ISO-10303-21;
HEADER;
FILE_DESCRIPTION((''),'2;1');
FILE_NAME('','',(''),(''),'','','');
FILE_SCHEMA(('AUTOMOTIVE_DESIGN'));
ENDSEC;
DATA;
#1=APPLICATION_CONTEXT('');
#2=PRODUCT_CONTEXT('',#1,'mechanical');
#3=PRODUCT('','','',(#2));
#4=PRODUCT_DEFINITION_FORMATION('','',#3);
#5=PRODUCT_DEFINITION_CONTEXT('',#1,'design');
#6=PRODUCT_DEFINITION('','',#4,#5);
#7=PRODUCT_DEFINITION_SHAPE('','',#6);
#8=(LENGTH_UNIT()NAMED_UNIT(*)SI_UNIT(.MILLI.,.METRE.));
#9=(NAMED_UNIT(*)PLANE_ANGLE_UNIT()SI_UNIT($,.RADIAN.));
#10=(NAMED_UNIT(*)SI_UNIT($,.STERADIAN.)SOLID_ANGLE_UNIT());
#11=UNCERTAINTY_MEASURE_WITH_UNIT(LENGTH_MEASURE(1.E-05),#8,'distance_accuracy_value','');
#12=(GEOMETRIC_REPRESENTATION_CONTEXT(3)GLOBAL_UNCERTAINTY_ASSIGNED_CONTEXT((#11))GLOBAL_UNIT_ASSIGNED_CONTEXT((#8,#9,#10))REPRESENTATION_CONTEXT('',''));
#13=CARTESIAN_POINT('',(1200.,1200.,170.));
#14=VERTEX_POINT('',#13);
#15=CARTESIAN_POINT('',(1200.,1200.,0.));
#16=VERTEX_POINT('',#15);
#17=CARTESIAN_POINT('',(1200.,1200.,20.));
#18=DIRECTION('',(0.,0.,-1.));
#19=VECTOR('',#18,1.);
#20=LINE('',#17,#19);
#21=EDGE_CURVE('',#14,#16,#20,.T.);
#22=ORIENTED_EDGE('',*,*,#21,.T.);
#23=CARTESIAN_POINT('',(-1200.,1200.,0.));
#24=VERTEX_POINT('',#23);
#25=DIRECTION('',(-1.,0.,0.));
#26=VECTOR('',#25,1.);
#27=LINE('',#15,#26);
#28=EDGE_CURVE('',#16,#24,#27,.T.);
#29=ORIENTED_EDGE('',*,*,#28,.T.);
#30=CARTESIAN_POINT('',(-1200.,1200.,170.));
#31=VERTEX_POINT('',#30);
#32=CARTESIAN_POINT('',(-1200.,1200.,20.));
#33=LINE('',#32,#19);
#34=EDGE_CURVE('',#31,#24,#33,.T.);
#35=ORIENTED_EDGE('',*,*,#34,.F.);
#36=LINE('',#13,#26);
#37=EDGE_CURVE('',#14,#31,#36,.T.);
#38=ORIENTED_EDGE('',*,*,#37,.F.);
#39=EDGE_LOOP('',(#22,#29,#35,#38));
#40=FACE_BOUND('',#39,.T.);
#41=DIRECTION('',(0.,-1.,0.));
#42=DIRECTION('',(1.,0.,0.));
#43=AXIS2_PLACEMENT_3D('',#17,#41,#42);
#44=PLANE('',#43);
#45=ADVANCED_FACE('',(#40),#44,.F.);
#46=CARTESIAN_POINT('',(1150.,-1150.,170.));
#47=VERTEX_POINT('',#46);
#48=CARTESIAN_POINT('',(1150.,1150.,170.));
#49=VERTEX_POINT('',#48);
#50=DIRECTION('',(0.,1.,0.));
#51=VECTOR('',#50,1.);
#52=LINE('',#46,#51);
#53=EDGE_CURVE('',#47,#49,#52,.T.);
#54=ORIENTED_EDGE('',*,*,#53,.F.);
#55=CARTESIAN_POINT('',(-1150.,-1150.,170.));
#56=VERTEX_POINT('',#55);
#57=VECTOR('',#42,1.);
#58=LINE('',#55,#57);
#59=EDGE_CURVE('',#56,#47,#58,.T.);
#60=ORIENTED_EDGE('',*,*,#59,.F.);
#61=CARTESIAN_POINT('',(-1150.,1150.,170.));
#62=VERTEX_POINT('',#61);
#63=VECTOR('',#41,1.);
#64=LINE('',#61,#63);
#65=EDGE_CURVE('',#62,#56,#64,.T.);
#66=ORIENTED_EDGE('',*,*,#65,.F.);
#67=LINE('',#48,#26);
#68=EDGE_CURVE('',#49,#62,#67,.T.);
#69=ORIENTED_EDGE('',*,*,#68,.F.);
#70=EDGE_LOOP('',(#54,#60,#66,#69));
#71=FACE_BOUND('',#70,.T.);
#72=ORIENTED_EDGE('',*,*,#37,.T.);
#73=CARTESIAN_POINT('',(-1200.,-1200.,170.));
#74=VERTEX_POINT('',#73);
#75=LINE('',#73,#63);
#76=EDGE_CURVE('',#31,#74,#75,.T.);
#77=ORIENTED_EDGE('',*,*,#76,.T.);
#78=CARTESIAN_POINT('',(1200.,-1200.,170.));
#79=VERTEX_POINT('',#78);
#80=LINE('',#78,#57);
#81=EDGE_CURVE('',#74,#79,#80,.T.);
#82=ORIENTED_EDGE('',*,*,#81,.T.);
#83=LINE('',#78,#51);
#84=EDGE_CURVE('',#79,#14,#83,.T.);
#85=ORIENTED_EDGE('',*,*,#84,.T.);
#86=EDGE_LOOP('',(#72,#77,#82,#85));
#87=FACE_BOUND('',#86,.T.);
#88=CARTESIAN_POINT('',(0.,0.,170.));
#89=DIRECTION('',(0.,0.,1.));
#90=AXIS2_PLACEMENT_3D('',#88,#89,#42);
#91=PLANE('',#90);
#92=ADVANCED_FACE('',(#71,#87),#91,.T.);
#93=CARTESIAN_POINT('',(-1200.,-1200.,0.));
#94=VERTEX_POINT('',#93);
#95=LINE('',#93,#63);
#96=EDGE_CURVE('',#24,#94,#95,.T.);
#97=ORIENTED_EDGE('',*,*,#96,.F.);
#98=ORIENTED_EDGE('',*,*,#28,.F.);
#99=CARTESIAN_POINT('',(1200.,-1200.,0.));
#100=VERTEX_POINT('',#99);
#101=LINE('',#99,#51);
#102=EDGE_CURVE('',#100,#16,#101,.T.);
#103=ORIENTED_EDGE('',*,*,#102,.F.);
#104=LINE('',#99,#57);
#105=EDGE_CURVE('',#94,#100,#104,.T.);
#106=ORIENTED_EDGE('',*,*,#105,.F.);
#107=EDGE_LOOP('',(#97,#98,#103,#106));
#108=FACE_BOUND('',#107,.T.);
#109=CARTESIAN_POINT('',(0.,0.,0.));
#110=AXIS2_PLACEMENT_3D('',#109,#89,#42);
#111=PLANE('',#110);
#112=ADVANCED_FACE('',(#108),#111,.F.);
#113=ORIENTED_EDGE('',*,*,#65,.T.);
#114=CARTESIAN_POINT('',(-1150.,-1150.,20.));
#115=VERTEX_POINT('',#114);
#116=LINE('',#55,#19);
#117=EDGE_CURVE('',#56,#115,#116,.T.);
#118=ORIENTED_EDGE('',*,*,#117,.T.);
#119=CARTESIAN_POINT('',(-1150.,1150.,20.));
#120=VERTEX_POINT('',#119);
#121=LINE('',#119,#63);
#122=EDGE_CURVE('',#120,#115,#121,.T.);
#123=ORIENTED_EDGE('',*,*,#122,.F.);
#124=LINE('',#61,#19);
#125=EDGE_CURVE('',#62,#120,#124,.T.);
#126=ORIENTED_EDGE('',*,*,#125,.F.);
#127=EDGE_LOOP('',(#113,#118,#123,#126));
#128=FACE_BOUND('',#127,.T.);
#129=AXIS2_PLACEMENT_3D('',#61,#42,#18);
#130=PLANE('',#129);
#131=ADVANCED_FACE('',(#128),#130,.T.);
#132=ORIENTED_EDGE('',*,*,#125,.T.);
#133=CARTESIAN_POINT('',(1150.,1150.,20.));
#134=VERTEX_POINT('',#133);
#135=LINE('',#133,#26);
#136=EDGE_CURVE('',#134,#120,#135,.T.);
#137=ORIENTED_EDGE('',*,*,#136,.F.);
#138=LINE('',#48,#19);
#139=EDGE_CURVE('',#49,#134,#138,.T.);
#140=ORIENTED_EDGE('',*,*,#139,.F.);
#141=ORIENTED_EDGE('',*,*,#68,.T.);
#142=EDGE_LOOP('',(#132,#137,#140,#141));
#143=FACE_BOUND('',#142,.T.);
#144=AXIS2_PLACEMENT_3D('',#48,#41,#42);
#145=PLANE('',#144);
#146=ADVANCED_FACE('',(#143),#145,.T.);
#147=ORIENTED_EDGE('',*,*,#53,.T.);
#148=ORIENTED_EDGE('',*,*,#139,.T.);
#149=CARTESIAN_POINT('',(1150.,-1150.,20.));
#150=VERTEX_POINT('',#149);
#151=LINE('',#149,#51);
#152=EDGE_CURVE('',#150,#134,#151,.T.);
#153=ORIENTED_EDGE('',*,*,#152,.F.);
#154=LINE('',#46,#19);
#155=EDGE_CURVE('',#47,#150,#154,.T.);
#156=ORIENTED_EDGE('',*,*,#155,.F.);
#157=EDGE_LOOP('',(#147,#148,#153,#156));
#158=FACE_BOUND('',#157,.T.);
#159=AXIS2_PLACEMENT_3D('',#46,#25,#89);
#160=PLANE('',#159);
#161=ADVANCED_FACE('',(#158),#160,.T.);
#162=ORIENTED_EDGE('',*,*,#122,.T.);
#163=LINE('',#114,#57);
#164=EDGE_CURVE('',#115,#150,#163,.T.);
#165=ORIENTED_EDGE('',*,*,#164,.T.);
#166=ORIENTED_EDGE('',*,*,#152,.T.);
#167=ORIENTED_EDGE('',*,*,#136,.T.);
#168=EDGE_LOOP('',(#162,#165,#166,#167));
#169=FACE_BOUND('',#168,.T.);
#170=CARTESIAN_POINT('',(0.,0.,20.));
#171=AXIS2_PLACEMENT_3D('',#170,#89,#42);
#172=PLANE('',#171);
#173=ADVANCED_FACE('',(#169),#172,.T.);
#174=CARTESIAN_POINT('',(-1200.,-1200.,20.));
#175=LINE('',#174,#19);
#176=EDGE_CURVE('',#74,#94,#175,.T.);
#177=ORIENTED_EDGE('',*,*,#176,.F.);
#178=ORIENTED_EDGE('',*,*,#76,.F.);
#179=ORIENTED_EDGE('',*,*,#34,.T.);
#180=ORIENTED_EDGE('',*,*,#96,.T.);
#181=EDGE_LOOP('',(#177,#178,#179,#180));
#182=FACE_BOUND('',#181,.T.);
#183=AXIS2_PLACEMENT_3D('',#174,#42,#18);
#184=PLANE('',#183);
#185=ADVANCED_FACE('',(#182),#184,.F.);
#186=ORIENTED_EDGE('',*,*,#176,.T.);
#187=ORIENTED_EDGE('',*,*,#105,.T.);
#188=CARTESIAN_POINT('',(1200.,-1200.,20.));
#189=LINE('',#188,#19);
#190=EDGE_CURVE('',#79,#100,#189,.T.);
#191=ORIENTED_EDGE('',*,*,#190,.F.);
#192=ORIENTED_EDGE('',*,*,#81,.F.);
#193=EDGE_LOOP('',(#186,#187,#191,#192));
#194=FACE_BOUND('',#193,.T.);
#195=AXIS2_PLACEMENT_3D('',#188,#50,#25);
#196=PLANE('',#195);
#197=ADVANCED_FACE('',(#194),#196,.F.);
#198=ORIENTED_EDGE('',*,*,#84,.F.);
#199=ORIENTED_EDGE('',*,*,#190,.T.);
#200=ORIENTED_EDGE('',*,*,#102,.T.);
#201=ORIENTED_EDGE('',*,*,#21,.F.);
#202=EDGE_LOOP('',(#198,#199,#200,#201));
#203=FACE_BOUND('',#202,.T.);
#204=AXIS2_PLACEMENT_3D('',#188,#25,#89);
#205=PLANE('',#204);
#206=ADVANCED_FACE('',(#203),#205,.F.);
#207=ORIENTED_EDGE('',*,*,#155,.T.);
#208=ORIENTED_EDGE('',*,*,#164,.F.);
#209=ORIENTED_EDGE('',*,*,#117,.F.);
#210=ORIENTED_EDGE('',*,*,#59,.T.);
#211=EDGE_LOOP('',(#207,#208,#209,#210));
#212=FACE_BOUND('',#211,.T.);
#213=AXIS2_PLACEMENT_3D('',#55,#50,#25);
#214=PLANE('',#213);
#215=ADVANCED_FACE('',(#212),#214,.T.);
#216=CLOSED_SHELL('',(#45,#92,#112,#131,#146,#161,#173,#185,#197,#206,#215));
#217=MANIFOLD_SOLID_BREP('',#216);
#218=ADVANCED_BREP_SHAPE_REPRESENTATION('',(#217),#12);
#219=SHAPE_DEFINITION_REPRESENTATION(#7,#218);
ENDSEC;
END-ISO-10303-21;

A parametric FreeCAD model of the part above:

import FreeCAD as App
import Part
import Sketcher
from FreeCAD import Vector

doc = App.newDocument("Part")
params = doc.addObject("Spreadsheet::Sheet", "Params")
for row, (alias, value) in enumerate([
    ("sketch1_width", "2400 mm"),
    ("pad1_length", "20 mm"),
    ("sketch2_width", "2400 mm"),
    ("sketch2_width2", "2300 mm"),
    ("pad2_length", "150 mm"),
], start=1):
    params.set(f"A{row}", alias)
    params.set(f"B{row}", "=" + value)
    params.setAlias(f"B{row}", alias)

body = doc.addObject("PartDesign::Body", "Body")

# Sketch on XY plane
sketch1 = body.newObject("Sketcher::SketchObject", "Sketch")
sketch1.AttachmentSupport = (doc.getObject("XY_Plane"), [""])
sketch1.MapMode = "FlatFace"
sketch1.addGeometry([
    Part.LineSegment(Vector(-1200, 1200, 0), Vector(-1200, -1200, 0)),
    Part.LineSegment(Vector(-1200, -1200, 0), Vector(1200, -1200, 0)),
    Part.LineSegment(Vector(1200, -1200, 0), Vector(1200, 1200, 0)),
    Part.LineSegment(Vector(1200, 1200, 0), Vector(-1200, 1200, 0)),
], False)
sketch1.addConstraint([
    Sketcher.Constraint("Coincident", 0, 2, 1, 1),
    Sketcher.Constraint("Coincident", 1, 2, 2, 1),
    Sketcher.Constraint("Coincident", 2, 2, 3, 1),
    Sketcher.Constraint("Coincident", 3, 2, 0, 1),
    Sketcher.Constraint("Vertical", 0),
    Sketcher.Constraint("Horizontal", 1),
    Sketcher.Constraint("Vertical", 2),
    Sketcher.Constraint("Horizontal", 3),
    Sketcher.Constraint("Symmetric", 0, 2, 2, 2, -1, 1),
    Sketcher.Constraint("Equal", 3, 0),
    Sketcher.Constraint("DistanceX", 1, 1, 1, 2, 2400.0),
])
sketch1.setExpression("Constraints[10]", "Params.sketch1_width")
pad1 = body.newObject("PartDesign::Pad", "Pad")
pad1.Profile = sketch1
pad1.setExpression("Length", "Params.pad1_length")

# Sketch on XY plane
sketch2 = body.newObject("Sketcher::SketchObject", "Sketch001")
sketch2.AttachmentSupport = (doc.getObject("XY_Plane"), [""])
sketch2.MapMode = "FlatFace"
sketch2.AttachmentOffset = App.Placement(Vector(0, 0, 20), App.Rotation())
sketch2.addGeometry([
    Part.LineSegment(Vector(-1200, 1200, 0), Vector(-1200, -1200, 0)),  # 0
    Part.LineSegment(Vector(-1200, -1200, 0), Vector(1200, -1200, 0)),  # 1
    Part.LineSegment(Vector(1200, -1200, 0), Vector(1200, 1200, 0)),  # 2
    Part.LineSegment(Vector(1200, 1200, 0), Vector(-1200, 1200, 0)),  # 3
    Part.LineSegment(Vector(1150, -1150, 0), Vector(-1150, -1150, 0)),  # 4
    Part.LineSegment(Vector(-1150, -1150, 0), Vector(-1150, 1150, 0)),  # 5
    Part.LineSegment(Vector(-1150, 1150, 0), Vector(1150, 1150, 0)),  # 6
    Part.LineSegment(Vector(1150, 1150, 0), Vector(1150, -1150, 0)),  # 7
], False)
sketch2.addConstraint([
    Sketcher.Constraint("Coincident", 0, 2, 1, 1),
    Sketcher.Constraint("Coincident", 1, 2, 2, 1),
    Sketcher.Constraint("Coincident", 2, 2, 3, 1),
    Sketcher.Constraint("Coincident", 3, 2, 0, 1),
    Sketcher.Constraint("Coincident", 4, 2, 5, 1),
    Sketcher.Constraint("Coincident", 5, 2, 6, 1),
    Sketcher.Constraint("Coincident", 6, 2, 7, 1),
    Sketcher.Constraint("Coincident", 7, 2, 4, 1),
    Sketcher.Constraint("Vertical", 0),
    Sketcher.Constraint("Horizontal", 1),
    Sketcher.Constraint("Vertical", 2),
    Sketcher.Constraint("Horizontal", 3),
    Sketcher.Constraint("Horizontal", 4),
    Sketcher.Constraint("Vertical", 5),
    Sketcher.Constraint("Horizontal", 6),
    Sketcher.Constraint("Vertical", 7),
    Sketcher.Constraint("Symmetric", 0, 2, 2, 2, -1, 1),
    Sketcher.Constraint("Symmetric", 4, 2, 6, 2, -1, 1),
    Sketcher.Constraint("Equal", 3, 0),
    Sketcher.Constraint("Equal", 6, 5),
    Sketcher.Constraint("DistanceX", 1, 1, 1, 2, 2400.0),
    Sketcher.Constraint("DistanceX", 4, 2, 4, 1, 2300.0),
])
sketch2.setExpression("Constraints[20]", "Params.sketch2_width")
sketch2.setExpression("Constraints[21]", "Params.sketch2_width2")
pad2 = body.newObject("PartDesign::Pad", "Pad001")
pad2.Profile = sketch2
pad2.setExpression("Length", "Params.pad2_length")

doc.recompute()
